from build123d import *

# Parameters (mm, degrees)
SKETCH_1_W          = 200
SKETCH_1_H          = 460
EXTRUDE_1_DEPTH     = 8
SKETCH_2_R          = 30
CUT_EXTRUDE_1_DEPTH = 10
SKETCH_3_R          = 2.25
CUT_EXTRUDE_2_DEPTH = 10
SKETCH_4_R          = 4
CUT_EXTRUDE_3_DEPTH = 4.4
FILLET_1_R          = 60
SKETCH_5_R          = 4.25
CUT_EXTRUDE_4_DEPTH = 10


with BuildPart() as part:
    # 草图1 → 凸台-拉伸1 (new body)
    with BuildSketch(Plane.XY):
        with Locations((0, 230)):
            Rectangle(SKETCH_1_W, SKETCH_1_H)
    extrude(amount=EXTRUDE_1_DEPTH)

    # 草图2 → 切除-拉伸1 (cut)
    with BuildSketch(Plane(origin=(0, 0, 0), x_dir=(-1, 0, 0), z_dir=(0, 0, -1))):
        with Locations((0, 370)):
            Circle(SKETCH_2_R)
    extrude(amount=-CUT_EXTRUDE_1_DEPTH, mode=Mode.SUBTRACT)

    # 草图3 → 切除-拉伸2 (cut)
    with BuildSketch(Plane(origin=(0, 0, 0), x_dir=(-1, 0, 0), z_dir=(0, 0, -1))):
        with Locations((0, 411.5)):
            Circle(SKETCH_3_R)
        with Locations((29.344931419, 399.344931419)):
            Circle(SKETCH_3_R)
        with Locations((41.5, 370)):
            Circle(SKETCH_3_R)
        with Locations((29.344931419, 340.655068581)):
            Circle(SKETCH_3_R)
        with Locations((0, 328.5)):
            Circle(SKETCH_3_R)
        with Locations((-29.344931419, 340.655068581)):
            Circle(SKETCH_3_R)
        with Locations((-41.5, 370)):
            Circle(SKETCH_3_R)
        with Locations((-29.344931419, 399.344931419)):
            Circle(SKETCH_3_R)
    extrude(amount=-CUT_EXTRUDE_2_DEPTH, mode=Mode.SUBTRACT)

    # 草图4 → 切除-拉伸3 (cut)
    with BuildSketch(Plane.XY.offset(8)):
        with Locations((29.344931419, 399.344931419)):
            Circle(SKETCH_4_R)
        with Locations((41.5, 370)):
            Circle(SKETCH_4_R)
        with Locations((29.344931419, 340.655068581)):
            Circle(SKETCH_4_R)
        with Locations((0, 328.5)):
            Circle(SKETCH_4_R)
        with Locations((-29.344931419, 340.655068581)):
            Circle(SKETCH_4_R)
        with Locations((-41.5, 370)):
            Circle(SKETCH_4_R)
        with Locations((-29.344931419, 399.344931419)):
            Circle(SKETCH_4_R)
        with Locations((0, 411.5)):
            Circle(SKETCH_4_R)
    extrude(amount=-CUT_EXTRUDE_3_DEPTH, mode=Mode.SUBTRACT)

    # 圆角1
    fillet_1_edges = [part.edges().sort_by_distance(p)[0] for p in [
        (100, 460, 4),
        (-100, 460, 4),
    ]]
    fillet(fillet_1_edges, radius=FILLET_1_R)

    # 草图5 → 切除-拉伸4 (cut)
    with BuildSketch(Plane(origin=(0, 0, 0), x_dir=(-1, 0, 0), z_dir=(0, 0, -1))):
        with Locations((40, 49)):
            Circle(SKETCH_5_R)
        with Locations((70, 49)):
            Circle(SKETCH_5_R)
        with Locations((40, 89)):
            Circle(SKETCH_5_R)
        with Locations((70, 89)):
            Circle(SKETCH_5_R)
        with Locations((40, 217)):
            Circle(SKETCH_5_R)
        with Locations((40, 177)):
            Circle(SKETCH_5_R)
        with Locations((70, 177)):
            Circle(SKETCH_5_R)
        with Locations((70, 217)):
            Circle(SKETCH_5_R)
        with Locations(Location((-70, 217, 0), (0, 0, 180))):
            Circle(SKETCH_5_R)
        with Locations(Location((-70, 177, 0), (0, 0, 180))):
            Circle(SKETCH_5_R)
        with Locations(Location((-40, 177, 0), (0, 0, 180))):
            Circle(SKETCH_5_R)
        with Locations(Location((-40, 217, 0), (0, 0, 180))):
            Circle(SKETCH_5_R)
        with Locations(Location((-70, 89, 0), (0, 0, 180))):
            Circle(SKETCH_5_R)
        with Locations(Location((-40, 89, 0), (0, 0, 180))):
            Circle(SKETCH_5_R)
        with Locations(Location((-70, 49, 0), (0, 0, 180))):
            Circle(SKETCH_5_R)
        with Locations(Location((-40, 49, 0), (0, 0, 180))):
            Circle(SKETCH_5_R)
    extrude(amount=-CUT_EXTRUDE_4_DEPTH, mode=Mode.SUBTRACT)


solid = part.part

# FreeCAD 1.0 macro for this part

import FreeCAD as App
import Part
import Sketcher


def edges_at(feature, points):
    """Names of the edges that pass closest to the given points."""
    edges = feature.Shape.Edges
    near = lambda p: min(range(len(edges)), key=lambda i: edges[i].distToShape(Part.Vertex(*p))[0])
    return sorted({f"Edge{near(p) + 1}" for p in points})


def add_polygon(sketch, points):
    """Adds a closed chain of lines whose ends are joined by coincident constraints."""
    first, n = sketch.GeometryCount, len(points)
    for a, b in zip(points, points[1:] + points[:1]):
        sketch.addGeometry(Part.LineSegment(App.Vector(*a, 0), App.Vector(*b, 0)), False)
    for i in range(n):
        sketch.addConstraint(Sketcher.Constraint("Coincident", first + i, 2, first + (i + 1) % n, 1))

doc = App.newDocument("Part")
body = doc.addObject("PartDesign::Body", "Body")

# Sketch on XY plane
sketch1 = body.newObject("Sketcher::SketchObject", "Sketch")
sketch1.AttachmentSupport = (doc.getObject("XY_Plane"), [""])
sketch1.MapMode = "FlatFace"
add_polygon(sketch1, [(-100, 460), (-100, 0), (100, 0), (100, 460)])  # lines 0-3
sketch1.addConstraint(Sketcher.Constraint("Vertical", 0))
sketch1.addConstraint(Sketcher.Constraint("Horizontal", 1))
sketch1.addConstraint(Sketcher.Constraint("Vertical", 2))
sketch1.addConstraint(Sketcher.Constraint("Horizontal", 3))
sketch1.addConstraint(Sketcher.Constraint("Symmetric", 0, 2, 1, 2, -1, 1))
sketch1.addConstraint(Sketcher.Constraint("DistanceX", 1, 1, 1, 2, 200.0))
sketch1.addConstraint(Sketcher.Constraint("DistanceY", 0, 2, 0, 1, 460.0))
pad1 = body.newObject("PartDesign::Pad", "Pad")
pad1.Profile = sketch1
pad1.Length = 8

# Sketch on XY plane
sketch2 = body.newObject("Sketcher::SketchObject", "Sketch001")
sketch2.AttachmentSupport = (doc.getObject("XY_Plane"), [""])
sketch2.MapMode = "FlatFace"
sketch2.addGeometry(Part.Circle(App.Vector(0, 370, 0), App.Vector(0, 0, 1), 30), False)
sketch2.addConstraint(Sketcher.Constraint("PointOnObject", 0, 3, -2))
sketch2.addConstraint(Sketcher.Constraint("Diameter", 0, 60.0))
sketch2.addConstraint(Sketcher.Constraint("DistanceY", -1, 1, 0, 3, 370.0))
pocket1 = body.newObject("PartDesign::Pocket", "Pocket")
pocket1.Profile = sketch2
pocket1.Length = 10
pocket1.Reversed = True

# Sketch on XY plane
sketch3 = body.newObject("Sketcher::SketchObject", "Sketch002")
sketch3.AttachmentSupport = (doc.getObject("XY_Plane"), [""])
sketch3.MapMode = "FlatFace"
sketch3.addGeometry(Part.Circle(App.Vector(0, 411.5, 0), App.Vector(0, 0, 1), 2.2), False)
sketch3.addGeometry(Part.Circle(App.Vector(-29.3, 399.3, 0), App.Vector(0, 0, 1), 2.2), False)
sketch3.addGeometry(Part.Circle(App.Vector(-41.5, 370, 0), App.Vector(0, 0, 1), 2.2), False)
sketch3.addGeometry(Part.Circle(App.Vector(-29.3, 340.7, 0), App.Vector(0, 0, 1), 2.2), False)
sketch3.addGeometry(Part.Circle(App.Vector(0, 328.5, 0), App.Vector(0, 0, 1), 2.2), False)
sketch3.addGeometry(Part.Circle(App.Vector(29.3, 340.7, 0), App.Vector(0, 0, 1), 2.2), False)
sketch3.addGeometry(Part.Circle(App.Vector(41.5, 370, 0), App.Vector(0, 0, 1), 2.2), False)
sketch3.addGeometry(Part.Circle(App.Vector(29.3, 399.3, 0), App.Vector(0, 0, 1), 2.2), False)
sketch3.addConstraint(Sketcher.Constraint("Equal", 0, 1))
sketch3.addConstraint(Sketcher.Constraint("Equal", 1, 2))
sketch3.addConstraint(Sketcher.Constraint("Equal", 2, 3))
sketch3.addConstraint(Sketcher.Constraint("Equal", 3, 4))
sketch3.addConstraint(Sketcher.Constraint("Equal", 4, 5))
sketch3.addConstraint(Sketcher.Constraint("Equal", 5, 6))
sketch3.addConstraint(Sketcher.Constraint("Equal", 6, 7))
sketch3.addConstraint(Sketcher.Constraint("Symmetric", 3, 3, 5, 3, -2))
sketch3.addConstraint(Sketcher.Constraint("Symmetric", 2, 3, 6, 3, -2))
sketch3.addConstraint(Sketcher.Constraint("Symmetric", 1, 3, 7, 3, -2))
sketch3.addConstraint(Sketcher.Constraint("PointOnObject", 0, 3, -2))
sketch3.addConstraint(Sketcher.Constraint("PointOnObject", 4, 3, -2))
sketch3.addConstraint(Sketcher.Constraint("Vertical", 1, 3, 3, 3))
sketch3.addConstraint(Sketcher.Constraint("Diameter", 0, 4.5))
sketch3.addConstraint(Sketcher.Constraint("DistanceY", -1, 1, 2, 3, 370.0))
sketch3.addConstraint(Sketcher.Constraint("DistanceY", 4, 3, 0, 3, 83.0))
sketch3.addConstraint(Sketcher.Constraint("DistanceY", -1, 1, 0, 3, 411.5))
sketch3.addConstraint(Sketcher.Constraint("DistanceX", 2, 3, -1, 1, 41.5))
sketch3.addConstraint(Sketcher.Constraint("DistanceX", 1, 3, -1, 1, 29.344931))
sketch3.addConstraint(Sketcher.Constraint("DistanceY", -1, 1, 1, 3, 399.344931))
sketch3.addConstraint(Sketcher.Constraint("DistanceY", -1, 1, 3, 3, 340.655069))
pocket2 = body.newObject("PartDesign::Pocket", "Pocket001")
pocket2.Profile = sketch3
pocket2.Length = 10
pocket2.Reversed = True

# Sketch on XY plane
sketch4 = body.newObject("Sketcher::SketchObject", "Sketch003")
sketch4.AttachmentSupport = (doc.getObject("XY_Plane"), [""])
sketch4.MapMode = "FlatFace"
sketch4.AttachmentOffset = App.Placement(App.Vector(0, 0, 8), App.Rotation())
sketch4.addGeometry(Part.Circle(App.Vector(29.3, 399.3, 0), App.Vector(0, 0, 1), 4), False)
sketch4.addGeometry(Part.Circle(App.Vector(41.5, 370, 0), App.Vector(0, 0, 1), 4), False)
sketch4.addGeometry(Part.Circle(App.Vector(29.3, 340.7, 0), App.Vector(0, 0, 1), 4), False)
sketch4.addGeometry(Part.Circle(App.Vector(0, 328.5, 0), App.Vector(0, 0, 1), 4), False)
sketch4.addGeometry(Part.Circle(App.Vector(-29.3, 340.7, 0), App.Vector(0, 0, 1), 4), False)
sketch4.addGeometry(Part.Circle(App.Vector(-41.5, 370, 0), App.Vector(0, 0, 1), 4), False)
sketch4.addGeometry(Part.Circle(App.Vector(-29.3, 399.3, 0), App.Vector(0, 0, 1), 4), False)
sketch4.addGeometry(Part.Circle(App.Vector(0, 411.5, 0), App.Vector(0, 0, 1), 4), False)
sketch4.addConstraint(Sketcher.Constraint("Equal", 0, 1))
sketch4.addConstraint(Sketcher.Constraint("Equal", 1, 2))
sketch4.addConstraint(Sketcher.Constraint("Equal", 2, 3))
sketch4.addConstraint(Sketcher.Constraint("Equal", 3, 4))
sketch4.addConstraint(Sketcher.Constraint("Equal", 4, 5))
sketch4.addConstraint(Sketcher.Constraint("Equal", 5, 6))
sketch4.addConstraint(Sketcher.Constraint("Equal", 6, 7))
sketch4.addConstraint(Sketcher.Constraint("Symmetric", 2, 3, 4, 3, -2))
sketch4.addConstraint(Sketcher.Constraint("Symmetric", 1, 3, 5, 3, -2))
sketch4.addConstraint(Sketcher.Constraint("Symmetric", 0, 3, 6, 3, -2))
sketch4.addConstraint(Sketcher.Constraint("PointOnObject", 3, 3, -2))
sketch4.addConstraint(Sketcher.Constraint("PointOnObject", 7, 3, -2))
sketch4.addConstraint(Sketcher.Constraint("Vertical", 0, 3, 2, 3))
sketch4.addConstraint(Sketcher.Constraint("Diameter", 0, 8.0))
sketch4.addConstraint(Sketcher.Constraint("DistanceY", -1, 1, 1, 3, 370.0))
sketch4.addConstraint(Sketcher.Constraint("DistanceX", 5, 3, 1, 3, 83.0))
sketch4.addConstraint(Sketcher.Constraint("DistanceY", -1, 1, 3, 3, 328.5))
sketch4.addConstraint(Sketcher.Constraint("DistanceY", -1, 1, 7, 3, 411.5))
sketch4.addConstraint(Sketcher.Constraint("DistanceX", -1, 1, 0, 3, 29.344931))
sketch4.addConstraint(Sketcher.Constraint("DistanceY", -1, 1, 0, 3, 399.344931))
sketch4.addConstraint(Sketcher.Constraint("DistanceY", -1, 1, 2, 3, 340.655069))
pocket3 = body.newObject("PartDesign::Pocket", "Pocket002")
pocket3.Profile = sketch4
pocket3.Length = 4.4
doc.recompute()

fillet = body.newObject("PartDesign::Fillet", "Fillet")
fillet.Base = (pocket3, edges_at(pocket3, [(100, 460, 4), (-100, 460, 4)]))
fillet.Radius = 60

# Sketch on XY plane
sketch5 = body.newObject("Sketcher::SketchObject", "Sketch004")
sketch5.AttachmentSupport = (doc.getObject("XY_Plane"), [""])
sketch5.MapMode = "FlatFace"
sketch5.addGeometry(Part.Circle(App.Vector(-40, 49, 0), App.Vector(0, 0, 1), 4.2), False)
sketch5.addGeometry(Part.Circle(App.Vector(-70, 49, 0), App.Vector(0, 0, 1), 4.2), False)
sketch5.addGeometry(Part.Circle(App.Vector(-40, 89, 0), App.Vector(0, 0, 1), 4.2), False)
sketch5.addGeometry(Part.Circle(App.Vector(-70, 89, 0), App.Vector(0, 0, 1), 4.2), False)
sketch5.addGeometry(Part.Circle(App.Vector(-40, 217, 0), App.Vector(0, 0, 1), 4.2), False)
sketch5.addGeometry(Part.Circle(App.Vector(-40, 177, 0), App.Vector(0, 0, 1), 4.2), False)
sketch5.addGeometry(Part.Circle(App.Vector(-70, 177, 0), App.Vector(0, 0, 1), 4.2), False)
sketch5.addGeometry(Part.Circle(App.Vector(-70, 217, 0), App.Vector(0, 0, 1), 4.2), False)
sketch5.addGeometry(Part.Circle(App.Vector(70, 217, 0), App.Vector(0, 0, 1), 4.2), False)
sketch5.addGeometry(Part.Circle(App.Vector(70, 177, 0), App.Vector(0, 0, 1), 4.2), False)
sketch5.addGeometry(Part.Circle(App.Vector(40, 177, 0), App.Vector(0, 0, 1), 4.2), False)
sketch5.addGeometry(Part.Circle(App.Vector(40, 217, 0), App.Vector(0, 0, 1), 4.2), False)
sketch5.addGeometry(Part.Circle(App.Vector(70, 89, 0), App.Vector(0, 0, 1), 4.2), False)
sketch5.addGeometry(Part.Circle(App.Vector(40, 89, 0), App.Vector(0, 0, 1), 4.2), False)
sketch5.addGeometry(Part.Circle(App.Vector(70, 49, 0), App.Vector(0, 0, 1), 4.2), False)
sketch5.addGeometry(Part.Circle(App.Vector(40, 49, 0), App.Vector(0, 0, 1), 4.2), False)
sketch5.addConstraint(Sketcher.Constraint("Equal", 0, 1))
sketch5.addConstraint(Sketcher.Constraint("Equal", 1, 2))
sketch5.addConstraint(Sketcher.Constraint("Equal", 2, 3))
sketch5.addConstraint(Sketcher.Constraint("Equal", 3, 4))
sketch5.addConstraint(Sketcher.Constraint("Equal", 4, 5))
sketch5.addConstraint(Sketcher.Constraint("Equal", 5, 6))
sketch5.addConstraint(Sketcher.Constraint("Equal", 6, 7))
sketch5.addConstraint(Sketcher.Constraint("Equal", 7, 8))
sketch5.addConstraint(Sketcher.Constraint("Equal", 8, 9))
sketch5.addConstraint(Sketcher.Constraint("Equal", 9, 10))
sketch5.addConstraint(Sketcher.Constraint("Equal", 10, 11))
sketch5.addConstraint(Sketcher.Constraint("Equal", 11, 12))
sketch5.addConstraint(Sketcher.Constraint("Equal", 12, 13))
sketch5.addConstraint(Sketcher.Constraint("Equal", 13, 14))
sketch5.addConstraint(Sketcher.Constraint("Equal", 14, 15))
sketch5.addConstraint(Sketcher.Constraint("Symmetric", 7, 3, 8, 3, -2))
sketch5.addConstraint(Sketcher.Constraint("Symmetric", 6, 3, 9, 3, -2))
sketch5.addConstraint(Sketcher.Constraint("Symmetric", 5, 3, 10, 3, -2))
sketch5.addConstraint(Sketcher.Constraint("Symmetric", 4, 3, 11, 3, -2))
sketch5.addConstraint(Sketcher.Constraint("Symmetric", 3, 3, 12, 3, -2))
sketch5.addConstraint(Sketcher.Constraint("Symmetric", 2, 3, 13, 3, -2))
sketch5.addConstraint(Sketcher.Constraint("Symmetric", 1, 3, 14, 3, -2))
sketch5.addConstraint(Sketcher.Constraint("Symmetric", 0, 3, 15, 3, -2))
sketch5.addConstraint(Sketcher.Constraint("Horizontal", 0, 3, 1, 3))
sketch5.addConstraint(Sketcher.Constraint("Horizontal", 2, 3, 3, 3))
sketch5.addConstraint(Sketcher.Constraint("Horizontal", 5, 3, 6, 3))
sketch5.addConstraint(Sketcher.Constraint("Horizontal", 4, 3, 7, 3))
sketch5.addConstraint(Sketcher.Constraint("Vertical", 0, 3, 2, 3))
sketch5.addConstraint(Sketcher.Constraint("Vertical", 1, 3, 3, 3))
sketch5.addConstraint(Sketcher.Constraint("Vertical", 2, 3, 4, 3))
sketch5.addConstraint(Sketcher.Constraint("Vertical", 4, 3, 5, 3))
sketch5.addConstraint(Sketcher.Constraint("Vertical", 3, 3, 6, 3))
sketch5.addConstraint(Sketcher.Constraint("Vertical", 6, 3, 7, 3))
sketch5.addConstraint(Sketcher.Constraint("Diameter", 0, 8.5))
sketch5.addConstraint(Sketcher.Constraint("DistanceX", 0, 3, -1, 1, 40.0))
sketch5.addConstraint(Sketcher.Constraint("DistanceY", -1, 1, 0, 3, 49.0))
sketch5.addConstraint(Sketcher.Constraint("DistanceX", 1, 3, -1, 1, 70.0))
sketch5.addConstraint(Sketcher.Constraint("DistanceY", -1, 1, 2, 3, 89.0))
sketch5.addConstraint(Sketcher.Constraint("DistanceY", -1, 1, 4, 3, 217.0))
sketch5.addConstraint(Sketcher.Constraint("DistanceY", -1, 1, 5, 3, 177.0))
pocket4 = body.newObject("PartDesign::Pocket", "Pocket003")
pocket4.Profile = sketch5
pocket4.Length = 10
pocket4.Reversed = True

doc.recompute()
